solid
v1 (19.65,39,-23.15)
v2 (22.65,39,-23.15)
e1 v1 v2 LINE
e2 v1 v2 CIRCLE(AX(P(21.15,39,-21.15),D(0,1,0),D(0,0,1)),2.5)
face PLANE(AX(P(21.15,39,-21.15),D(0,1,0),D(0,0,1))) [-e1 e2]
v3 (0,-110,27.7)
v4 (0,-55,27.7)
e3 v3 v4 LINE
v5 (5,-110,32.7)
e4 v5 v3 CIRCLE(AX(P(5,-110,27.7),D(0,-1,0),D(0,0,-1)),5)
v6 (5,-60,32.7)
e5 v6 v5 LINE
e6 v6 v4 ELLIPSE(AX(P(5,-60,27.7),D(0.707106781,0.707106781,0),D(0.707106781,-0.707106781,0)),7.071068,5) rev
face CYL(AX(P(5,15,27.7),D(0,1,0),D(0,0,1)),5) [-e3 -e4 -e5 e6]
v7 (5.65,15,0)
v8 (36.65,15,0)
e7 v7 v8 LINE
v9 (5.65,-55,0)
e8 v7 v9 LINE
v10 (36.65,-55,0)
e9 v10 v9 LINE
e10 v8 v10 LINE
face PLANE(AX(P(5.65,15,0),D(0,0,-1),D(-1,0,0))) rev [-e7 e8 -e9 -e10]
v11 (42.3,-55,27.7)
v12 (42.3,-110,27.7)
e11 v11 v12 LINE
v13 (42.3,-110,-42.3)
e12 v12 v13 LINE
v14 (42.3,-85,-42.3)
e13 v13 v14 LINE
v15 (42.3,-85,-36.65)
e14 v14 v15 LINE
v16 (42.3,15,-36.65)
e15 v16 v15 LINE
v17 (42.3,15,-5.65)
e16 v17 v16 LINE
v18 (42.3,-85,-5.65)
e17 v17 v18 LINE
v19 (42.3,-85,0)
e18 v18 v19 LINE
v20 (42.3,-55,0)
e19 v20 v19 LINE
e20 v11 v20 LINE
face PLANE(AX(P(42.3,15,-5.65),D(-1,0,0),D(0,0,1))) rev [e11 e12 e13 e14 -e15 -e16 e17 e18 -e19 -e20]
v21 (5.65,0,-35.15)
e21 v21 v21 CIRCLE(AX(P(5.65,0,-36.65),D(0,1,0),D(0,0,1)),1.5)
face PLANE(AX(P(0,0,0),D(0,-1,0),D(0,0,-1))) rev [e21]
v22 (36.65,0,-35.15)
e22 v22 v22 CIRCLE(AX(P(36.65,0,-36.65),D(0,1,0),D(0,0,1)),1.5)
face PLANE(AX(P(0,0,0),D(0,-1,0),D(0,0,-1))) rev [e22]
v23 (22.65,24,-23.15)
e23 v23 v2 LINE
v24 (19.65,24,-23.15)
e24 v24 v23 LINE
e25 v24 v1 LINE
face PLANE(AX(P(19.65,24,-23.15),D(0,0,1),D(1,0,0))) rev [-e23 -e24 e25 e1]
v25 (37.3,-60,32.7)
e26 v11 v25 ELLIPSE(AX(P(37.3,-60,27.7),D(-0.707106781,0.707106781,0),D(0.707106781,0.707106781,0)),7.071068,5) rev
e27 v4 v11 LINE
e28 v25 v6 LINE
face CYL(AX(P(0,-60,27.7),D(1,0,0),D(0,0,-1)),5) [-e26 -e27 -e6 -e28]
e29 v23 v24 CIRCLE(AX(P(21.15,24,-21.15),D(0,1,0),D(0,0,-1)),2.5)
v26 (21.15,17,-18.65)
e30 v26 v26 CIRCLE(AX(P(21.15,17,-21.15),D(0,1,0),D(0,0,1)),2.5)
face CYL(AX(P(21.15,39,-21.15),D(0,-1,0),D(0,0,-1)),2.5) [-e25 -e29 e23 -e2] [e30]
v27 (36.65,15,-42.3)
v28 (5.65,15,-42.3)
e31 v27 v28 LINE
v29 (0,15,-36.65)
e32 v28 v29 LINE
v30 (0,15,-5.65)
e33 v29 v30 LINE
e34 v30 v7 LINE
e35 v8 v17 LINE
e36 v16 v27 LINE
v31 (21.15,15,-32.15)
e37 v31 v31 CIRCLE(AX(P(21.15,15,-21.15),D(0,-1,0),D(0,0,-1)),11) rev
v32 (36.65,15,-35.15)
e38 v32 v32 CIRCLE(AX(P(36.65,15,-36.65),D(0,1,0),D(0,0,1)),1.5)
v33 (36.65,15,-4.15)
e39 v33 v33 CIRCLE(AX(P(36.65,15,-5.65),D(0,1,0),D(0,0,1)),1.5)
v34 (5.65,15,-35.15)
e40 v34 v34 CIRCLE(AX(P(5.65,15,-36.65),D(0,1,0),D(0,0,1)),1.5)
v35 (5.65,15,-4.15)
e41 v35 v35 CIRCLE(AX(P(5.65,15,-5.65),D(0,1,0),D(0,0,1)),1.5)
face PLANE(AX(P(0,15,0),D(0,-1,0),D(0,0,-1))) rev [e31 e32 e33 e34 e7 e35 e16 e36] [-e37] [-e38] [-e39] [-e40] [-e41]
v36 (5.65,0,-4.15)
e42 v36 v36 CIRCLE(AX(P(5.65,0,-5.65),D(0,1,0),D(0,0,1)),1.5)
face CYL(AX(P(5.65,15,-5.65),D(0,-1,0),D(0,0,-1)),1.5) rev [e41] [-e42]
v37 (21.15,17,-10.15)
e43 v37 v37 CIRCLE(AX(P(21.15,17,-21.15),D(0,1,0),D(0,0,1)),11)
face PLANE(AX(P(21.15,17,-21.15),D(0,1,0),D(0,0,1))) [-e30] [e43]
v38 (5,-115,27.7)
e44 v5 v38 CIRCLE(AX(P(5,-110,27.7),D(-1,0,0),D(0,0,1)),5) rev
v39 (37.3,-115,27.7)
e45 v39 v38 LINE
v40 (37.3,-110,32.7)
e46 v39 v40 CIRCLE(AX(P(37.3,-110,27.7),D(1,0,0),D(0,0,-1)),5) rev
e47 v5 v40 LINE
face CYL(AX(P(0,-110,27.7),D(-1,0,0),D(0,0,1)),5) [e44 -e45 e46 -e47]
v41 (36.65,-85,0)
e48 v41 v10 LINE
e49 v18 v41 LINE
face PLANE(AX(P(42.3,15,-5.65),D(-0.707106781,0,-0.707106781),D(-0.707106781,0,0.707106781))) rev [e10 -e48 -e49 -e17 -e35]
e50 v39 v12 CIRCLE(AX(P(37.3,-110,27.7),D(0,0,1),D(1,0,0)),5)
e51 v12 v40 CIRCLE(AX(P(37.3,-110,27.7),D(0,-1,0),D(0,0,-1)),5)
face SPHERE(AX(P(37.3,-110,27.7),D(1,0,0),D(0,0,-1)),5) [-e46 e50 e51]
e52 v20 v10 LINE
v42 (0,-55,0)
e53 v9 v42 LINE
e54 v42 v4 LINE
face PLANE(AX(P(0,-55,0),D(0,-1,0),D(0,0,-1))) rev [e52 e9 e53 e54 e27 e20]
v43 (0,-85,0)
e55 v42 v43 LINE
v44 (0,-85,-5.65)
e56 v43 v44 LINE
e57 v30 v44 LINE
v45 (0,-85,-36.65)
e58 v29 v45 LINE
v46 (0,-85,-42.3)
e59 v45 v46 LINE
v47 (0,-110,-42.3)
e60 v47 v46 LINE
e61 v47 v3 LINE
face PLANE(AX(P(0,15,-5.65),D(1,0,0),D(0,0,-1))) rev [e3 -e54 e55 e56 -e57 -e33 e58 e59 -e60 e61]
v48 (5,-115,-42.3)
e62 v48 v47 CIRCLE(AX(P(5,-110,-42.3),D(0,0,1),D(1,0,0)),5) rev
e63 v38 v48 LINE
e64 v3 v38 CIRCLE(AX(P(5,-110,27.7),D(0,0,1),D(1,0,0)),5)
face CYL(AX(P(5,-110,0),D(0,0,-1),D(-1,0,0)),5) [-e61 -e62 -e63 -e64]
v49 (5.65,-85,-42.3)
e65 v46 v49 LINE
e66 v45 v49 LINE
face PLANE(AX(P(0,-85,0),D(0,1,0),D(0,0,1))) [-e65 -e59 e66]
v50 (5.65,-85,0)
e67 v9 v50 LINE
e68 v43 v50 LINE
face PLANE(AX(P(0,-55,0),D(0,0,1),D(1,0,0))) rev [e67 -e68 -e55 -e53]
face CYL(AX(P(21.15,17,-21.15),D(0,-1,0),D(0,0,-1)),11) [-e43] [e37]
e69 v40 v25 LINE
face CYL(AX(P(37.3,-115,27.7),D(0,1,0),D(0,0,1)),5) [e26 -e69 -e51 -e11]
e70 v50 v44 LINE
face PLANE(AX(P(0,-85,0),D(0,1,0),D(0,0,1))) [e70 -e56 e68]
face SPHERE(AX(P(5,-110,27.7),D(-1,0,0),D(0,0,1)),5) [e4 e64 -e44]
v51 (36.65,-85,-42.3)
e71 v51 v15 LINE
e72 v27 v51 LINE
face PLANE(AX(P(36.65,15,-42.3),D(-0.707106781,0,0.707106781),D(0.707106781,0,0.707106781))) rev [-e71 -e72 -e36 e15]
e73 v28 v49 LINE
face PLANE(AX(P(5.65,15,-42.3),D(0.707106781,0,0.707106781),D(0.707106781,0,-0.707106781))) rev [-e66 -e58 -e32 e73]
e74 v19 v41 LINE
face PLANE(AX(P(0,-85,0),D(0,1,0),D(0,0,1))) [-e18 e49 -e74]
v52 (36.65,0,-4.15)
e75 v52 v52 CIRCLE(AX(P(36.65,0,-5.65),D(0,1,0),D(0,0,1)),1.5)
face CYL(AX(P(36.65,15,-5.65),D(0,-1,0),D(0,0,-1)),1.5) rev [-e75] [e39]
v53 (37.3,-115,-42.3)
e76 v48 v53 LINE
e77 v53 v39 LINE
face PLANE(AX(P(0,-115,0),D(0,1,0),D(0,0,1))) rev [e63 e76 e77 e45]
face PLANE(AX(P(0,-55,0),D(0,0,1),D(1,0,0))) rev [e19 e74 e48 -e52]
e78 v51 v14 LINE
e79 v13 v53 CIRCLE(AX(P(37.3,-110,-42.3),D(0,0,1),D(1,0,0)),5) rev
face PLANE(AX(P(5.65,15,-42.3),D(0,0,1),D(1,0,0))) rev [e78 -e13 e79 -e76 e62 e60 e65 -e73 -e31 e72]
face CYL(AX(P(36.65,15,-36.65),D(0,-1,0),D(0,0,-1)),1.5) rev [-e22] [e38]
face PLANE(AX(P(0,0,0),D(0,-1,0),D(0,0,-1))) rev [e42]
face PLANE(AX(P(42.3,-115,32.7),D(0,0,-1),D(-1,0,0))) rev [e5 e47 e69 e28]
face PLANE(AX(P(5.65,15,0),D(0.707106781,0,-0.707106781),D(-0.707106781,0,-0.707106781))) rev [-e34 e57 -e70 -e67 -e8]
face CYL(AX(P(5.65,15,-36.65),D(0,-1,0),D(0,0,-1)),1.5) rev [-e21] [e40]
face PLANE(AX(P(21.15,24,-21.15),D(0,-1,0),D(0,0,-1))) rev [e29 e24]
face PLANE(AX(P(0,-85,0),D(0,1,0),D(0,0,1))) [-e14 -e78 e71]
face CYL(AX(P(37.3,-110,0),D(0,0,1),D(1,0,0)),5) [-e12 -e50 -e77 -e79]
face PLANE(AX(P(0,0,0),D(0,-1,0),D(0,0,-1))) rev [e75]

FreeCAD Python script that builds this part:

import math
import FreeCAD as App
import Part
import Sketcher


def edges_at(feature, points):
    """Names of the edges that pass closest to the given points."""
    edges = feature.Shape.Edges
    near = lambda p: min(range(len(edges)), key=lambda i: edges[i].distToShape(Part.Vertex(*p))[0])
    return sorted({f"Edge{near(p) + 1}" for p in points})

doc = App.newDocument("Part")
body = doc.addObject("PartDesign::Body", "Body")

sketch1 = doc.addObject("Sketcher::SketchObject", "Sketch")
body.addObject(sketch1)
sketch1.AttachmentSupport = (doc.XZ_Plane, [""])
sketch1.MapMode = "FlatFace"
sketch1.addGeometry([
    Part.LineSegment(App.Vector(5.65, 0, 0), App.Vector(36.65, 0, 0)),
    Part.LineSegment(App.Vector(36.65, 0, 0), App.Vector(42.3, -5.65, 0)),
    Part.LineSegment(App.Vector(42.3, -5.65, 0), App.Vector(42.3, -36.65, 0)),
    Part.LineSegment(App.Vector(42.3, -36.65, 0), App.Vector(36.65, -42.3, 0)),
    Part.LineSegment(App.Vector(36.65, -42.3, 0), App.Vector(5.65, -42.3, 0)),
    Part.LineSegment(App.Vector(5.65, -42.3, 0), App.Vector(0, -36.65, 0)),
    Part.LineSegment(App.Vector(0, -36.65, 0), App.Vector(0, -5.65, 0)),
    Part.LineSegment(App.Vector(0, -5.65, 0), App.Vector(5.65, 0, 0)),
    Part.Circle(App.Vector(5.65, -5.65, 0), App.Vector(0, 0, 1), 1.5),
    Part.Circle(App.Vector(36.65, -5.65, 0), App.Vector(0, 0, 1), 1.5),
    Part.Circle(App.Vector(5.65, -36.65, 0), App.Vector(0, 0, 1), 1.5),
    Part.Circle(App.Vector(36.65, -36.65, 0), App.Vector(0, 0, 1), 1.5),
], False)
sketch1.addConstraint([
    Sketcher.Constraint("Coincident", 0, 2, 1, 1),
    Sketcher.Constraint("Coincident", 1, 2, 2, 1),
    Sketcher.Constraint("Coincident", 2, 2, 3, 1),
    Sketcher.Constraint("Coincident", 3, 2, 4, 1),
    Sketcher.Constraint("Coincident", 4, 2, 5, 1),
    Sketcher.Constraint("Coincident", 5, 2, 6, 1),
    Sketcher.Constraint("Coincident", 6, 2, 7, 1),
    Sketcher.Constraint("Coincident", 7, 2, 0, 1),
    Sketcher.Constraint("Horizontal", 0),
    Sketcher.Constraint("Vertical", 2),
    Sketcher.Constraint("Horizontal", 4),
    Sketcher.Constraint("Vertical", 6),
    Sketcher.Constraint("Equal", 8, 9),
    Sketcher.Constraint("Equal", 9, 10),
    Sketcher.Constraint("Equal", 10, 11),
    Sketcher.Constraint("PointOnObject", 0, 2, -1),
    Sketcher.Constraint("PointOnObject", 5, 2, -2),
    Sketcher.Constraint("Perpendicular", 1, 3),
    Sketcher.Constraint("Perpendicular", 3, 5),
    Sketcher.Constraint("Perpendicular", 5, 7),
    Sketcher.Constraint("Horizontal", 8, 3, 9, 3),
    Sketcher.Constraint("Horizontal", 10, 3, 11, 3),
    Sketcher.Constraint("Horizontal", 9, 3, 1, 2),
    Sketcher.Constraint("Horizontal", 11, 3, 2, 2),
    Sketcher.Constraint("Horizontal", 2, 2, 5, 2),
    Sketcher.Constraint("Horizontal", 1, 2, 6, 2),
    Sketcher.Constraint("Vertical", 8, 3, 10, 3),
    Sketcher.Constraint("Vertical", 9, 3, 11, 3),
    Sketcher.Constraint("Vertical", 11, 3, 0, 2),
    Sketcher.Constraint("Vertical", 0, 2, 3, 2),
    Sketcher.Constraint("Vertical", 10, 3, 4, 2),
    Sketcher.Constraint("Vertical", 4, 2, 7, 2),
    Sketcher.Constraint("Equal", 4, 2),
    Sketcher.Constraint("Diameter", 8, 3.0),
    Sketcher.Constraint("DistanceX", 0, 1, 0, 2, 31.0),
    Sketcher.Constraint("DistanceX", -1, 1, 1, 2, 42.3),
])
pad1 = doc.addObject("PartDesign::Pad", "Pad")
body.addObject(pad1)
pad1.Profile = sketch1
pad1.Length = 15
pad1.Reversed = True

sketch2 = doc.addObject("Sketcher::SketchObject", "Sketch001")
body.addObject(sketch2)
sketch2.AttachmentSupport = (doc.XZ_Plane, [""])
sketch2.MapMode = "FlatFace"
sketch2.addGeometry([
    Part.LineSegment(App.Vector(5.65, 0, 0), App.Vector(0, -5.65, 0)),
    Part.LineSegment(App.Vector(0, -5.65, 0), App.Vector(0, -36.65, 0)),
    Part.LineSegment(App.Vector(0, -36.65, 0), App.Vector(5.65, -42.3, 0)),
    Part.LineSegment(App.Vector(5.65, -42.3, 0), App.Vector(36.65, -42.3, 0)),
    Part.LineSegment(App.Vector(36.65, -42.3, 0), App.Vector(42.3, -36.65, 0)),
    Part.LineSegment(App.Vector(42.3, -36.65, 0), App.Vector(42.3, -5.65, 0)),
    Part.LineSegment(App.Vector(42.3, -5.65, 0), App.Vector(36.65, 0, 0)),
    Part.LineSegment(App.Vector(36.65, 0, 0), App.Vector(5.65, 0, 0)),
], False)
sketch2.addConstraint([
    Sketcher.Constraint("Coincident", 0, 2, 1, 1),
    Sketcher.Constraint("Coincident", 1, 2, 2, 1),
    Sketcher.Constraint("Coincident", 2, 2, 3, 1),
    Sketcher.Constraint("Coincident", 3, 2, 4, 1),
    Sketcher.Constraint("Coincident", 4, 2, 5, 1),
    Sketcher.Constraint("Coincident", 5, 2, 6, 1),
    Sketcher.Constraint("Coincident", 6, 2, 7, 1),
    Sketcher.Constraint("Coincident", 7, 2, 0, 1),
    Sketcher.Constraint("Vertical", 1),
    Sketcher.Constraint("Horizontal", 3),
    Sketcher.Constraint("Vertical", 5),
    Sketcher.Constraint("Horizontal", 7),
    Sketcher.Constraint("PointOnObject", 0, 2, -2),
    Sketcher.Constraint("PointOnObject", 6, 2, -1),
    Sketcher.Constraint("Perpendicular", 0, 2),
    Sketcher.Constraint("Perpendicular", 2, 4),
    Sketcher.Constraint("Perpendicular", 4, 6),
    Sketcher.Constraint("Horizontal", 1, 2, 4, 2),
    Sketcher.Constraint("Horizontal", 0, 2, 5, 2),
    Sketcher.Constraint("Vertical", 3, 2, 6, 2),
    Sketcher.Constraint("Vertical", 2, 2, 7, 2),
    Sketcher.Constraint("Equal", 7, 1),
    Sketcher.Constraint("DistanceX", 3, 1, 3, 2, 31.0),
    Sketcher.Constraint("DistanceY", 2, 2, -1, 1, 42.3),
])
pad2 = doc.addObject("PartDesign::Pad", "Pad001")
body.addObject(pad2)
pad2.Profile = sketch2
pad2.Length = 85

sketch3 = doc.addObject("Sketcher::SketchObject", "Sketch002")
body.addObject(sketch3)
sketch3.AttachmentSupport = (doc.XZ_Plane, [""])
sketch3.MapMode = "FlatFace"
sketch3.AttachmentOffset = App.Placement(App.Vector(0, 0, -15), App.Rotation())
sketch3.addGeometry(Part.Circle(App.Vector(21.15, -21.15, 0), App.Vector(0, 0, 1), 11), False)
sketch3.addConstraint([
    Sketcher.Constraint("Diameter", 0, 22.0),
    Sketcher.Constraint("DistanceX", -1, 1, 0, 3, 21.15),
    Sketcher.Constraint("DistanceY", 0, 3, -1, 1, 21.15),
])
pad3 = doc.addObject("PartDesign::Pad", "Pad002")
body.addObject(pad3)
pad3.Profile = sketch3
pad3.Length = 2
pad3.Reversed = True

sketch4 = doc.addObject("Sketcher::SketchObject", "Sketch003")
body.addObject(sketch4)
sketch4.AttachmentSupport = (doc.XZ_Plane, [""])
sketch4.MapMode = "FlatFace"
sketch4.AttachmentOffset = App.Placement(App.Vector(0, 0, -17), App.Rotation())
sketch4.addGeometry(Part.Circle(App.Vector(21.15, -21.15, 0), App.Vector(0, 0, 1), 2.5), False)
sketch4.addConstraint([
    Sketcher.Constraint("Diameter", 0, 5.0),
    Sketcher.Constraint("DistanceX", -1, 1, 0, 3, 21.15),
    Sketcher.Constraint("DistanceY", 0, 3, -1, 1, 21.15),
])
pad4 = doc.addObject("PartDesign::Pad", "Pad003")
body.addObject(pad4)
pad4.Profile = sketch4
pad4.Length = 22
pad4.Reversed = True

sketch5 = doc.addObject("Sketcher::SketchObject", "Sketch004")
body.addObject(sketch5)
sketch5.AttachmentSupport = (doc.XZ_Plane, [""])
sketch5.MapMode = "FlatFace"
sketch5.AttachmentOffset = App.Placement(App.Vector(0, 0, -39), App.Rotation())
sketch5.addGeometry([
    Part.LineSegment(App.Vector(19.65, -23.15, 0), App.Vector(22.65, -23.15, 0)),
    Part.ArcOfCircle(Part.Circle(App.Vector(21.15, -21.15, 0), App.Vector(0, 0, 1), 2.5), math.radians(-126.869898), math.radians(-53.130102)),
], False)
sketch5.addConstraint([
    Sketcher.Constraint("Coincident", 0, 1, 1, 1),
    Sketcher.Constraint("Coincident", 1, 2, 0, 2),
    Sketcher.Constraint("Horizontal", 0),
    Sketcher.Constraint("Radius", 1, 2.5),
    Sketcher.Constraint("DistanceX", 0, 1, 0, 2, 3.0),
    Sketcher.Constraint("DistanceX", -1, 1, 1, 3, 21.15),
    Sketcher.Constraint("DistanceY", 1, 3, -1, 1, 21.15),
])
pocket1 = doc.addObject("PartDesign::Pocket", "Pocket")
body.addObject(pocket1)
pocket1.Profile = sketch5
pocket1.Length = 15
pocket1.Reversed = True

sketch6 = doc.addObject("Sketcher::SketchObject", "Sketch005")
body.addObject(sketch6)
sketch6.AttachmentSupport = (doc.XZ_Plane, [""])
sketch6.MapMode = "FlatFace"
sketch6.AttachmentOffset = App.Placement(App.Vector(0, 0, 85), App.Rotation())
sketch6.addGeometry([
    Part.LineSegment(App.Vector(0, 32.7, 0), App.Vector(0, -42.3, 0)),
    Part.LineSegment(App.Vector(0, -42.3, 0), App.Vector(42.3, -42.3, 0)),
    Part.LineSegment(App.Vector(42.3, -42.3, 0), App.Vector(42.3, 32.7, 0)),
    Part.LineSegment(App.Vector(42.3, 32.7, 0), App.Vector(0, 32.7, 0)),
], False)
sketch6.addConstraint([
    Sketcher.Constraint("Coincident", 0, 2, 1, 1),
    Sketcher.Constraint("Coincident", 1, 2, 2, 1),
    Sketcher.Constraint("Coincident", 2, 2, 3, 1),
    Sketcher.Constraint("Coincident", 3, 2, 0, 1),
    Sketcher.Constraint("Vertical", 0),
    Sketcher.Constraint("Horizontal", 1),
    Sketcher.Constraint("Vertical", 2),
    Sketcher.Constraint("Horizontal", 3),
    Sketcher.Constraint("PointOnObject", 0, 2, -2),
    Sketcher.Constraint("DistanceY", 0, 2, 0, 1, 75.0),
    Sketcher.Constraint("DistanceX", 1, 1, 1, 2, 42.3),
    Sketcher.Constraint("DistanceY", 0, 2, -1, 1, 42.3),
])
pad5 = doc.addObject("PartDesign::Pad", "Pad004")
body.addObject(pad5)
pad5.Profile = sketch6
pad5.Length = 30

sketch7 = doc.addObject("Sketcher::SketchObject", "Sketch006")
body.addObject(sketch7)
sketch7.AttachmentSupport = (doc.XZ_Plane, [""])
sketch7.MapMode = "FlatFace"
sketch7.AttachmentOffset = App.Placement(App.Vector(0, 0, 85), App.Rotation())
sketch7.addGeometry([
    Part.LineSegment(App.Vector(0, 0, 0), App.Vector(0, 32.7, 0)),
    Part.LineSegment(App.Vector(0, 32.7, 0), App.Vector(42.3, 32.7, 0)),
    Part.LineSegment(App.Vector(42.3, 32.7, 0), App.Vector(42.3, 0, 0)),
    Part.LineSegment(App.Vector(42.3, 0, 0), App.Vector(0, 0, 0)),
], False)
sketch7.addConstraint([
    Sketcher.Constraint("Coincident", 0, 2, 1, 1),
    Sketcher.Constraint("Coincident", 1, 2, 2, 1),
    Sketcher.Constraint("Coincident", 2, 2, 3, 1),
    Sketcher.Constraint("Coincident", 3, 2, 0, 1),
    Sketcher.Constraint("Vertical", 0),
    Sketcher.Constraint("Horizontal", 1),
    Sketcher.Constraint("Vertical", 2),
    Sketcher.Constraint("Horizontal", 3),
    Sketcher.Constraint("Coincident", 3, 2, -1, 1),
    Sketcher.Constraint("DistanceX", 1, 1, 1, 2, 42.3),
    Sketcher.Constraint("DistanceY", 0, 1, 0, 2, 32.7),
])
pad6 = doc.addObject("PartDesign::Pad", "Pad005")
body.addObject(pad6)
pad6.Profile = sketch7
pad6.Length = 30
pad6.Reversed = True
doc.recompute()

fillet = doc.addObject("PartDesign::Fillet", "Fillet")
body.addObject(fillet)
fillet.Base = (pad6, edges_at(pad6, [
    (21.15, -55, 32.7),
    (42.3, -85, 32.7),
    (0, -85, 32.7),
    (42.3, -115, -4.8),
    (21.15, -115, 32.7),
    (0, -115, -4.8),
]))
fillet.Radius = 5

doc.recompute()
